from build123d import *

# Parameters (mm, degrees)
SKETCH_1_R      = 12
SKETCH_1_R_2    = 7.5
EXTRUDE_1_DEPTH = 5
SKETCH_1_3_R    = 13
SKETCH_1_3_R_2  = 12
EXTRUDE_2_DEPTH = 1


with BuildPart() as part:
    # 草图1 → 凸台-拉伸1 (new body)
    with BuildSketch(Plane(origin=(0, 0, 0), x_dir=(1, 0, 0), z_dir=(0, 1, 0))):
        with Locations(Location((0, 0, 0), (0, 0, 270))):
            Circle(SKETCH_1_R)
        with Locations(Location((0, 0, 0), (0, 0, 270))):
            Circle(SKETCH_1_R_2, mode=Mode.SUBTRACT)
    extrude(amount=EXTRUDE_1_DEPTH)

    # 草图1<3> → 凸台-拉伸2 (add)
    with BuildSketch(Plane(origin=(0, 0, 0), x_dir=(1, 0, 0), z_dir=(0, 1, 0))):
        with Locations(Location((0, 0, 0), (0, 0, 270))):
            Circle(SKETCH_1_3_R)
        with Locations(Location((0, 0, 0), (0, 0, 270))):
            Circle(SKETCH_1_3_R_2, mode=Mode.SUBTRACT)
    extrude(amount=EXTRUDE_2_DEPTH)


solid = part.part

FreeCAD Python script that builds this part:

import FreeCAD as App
import Part
import Sketcher

V = App.Vector

doc = App.newDocument("Part")
body = doc.addObject("PartDesign::Body", "Body")

sketch1 = doc.addObject("Sketcher::SketchObject", "Sketch")
body.addObject(sketch1)
sketch1.AttachmentSupport = (doc.XZ_Plane, [""])
sketch1.MapMode = "FlatFace"
sketch1.addGeometry(Part.Circle(V(0, 0, 0), V(0, 0, 1), 12), False)
sketch1.addGeometry(Part.Circle(V(0, 0, 0), V(0, 0, 1), 7.5), False)
sketch1.addConstraint(Sketcher.Constraint("Coincident", 0, 3, -1, 1))
sketch1.addConstraint(Sketcher.Constraint("Coincident", 1, 3, -1, 1))
sketch1.addConstraint(Sketcher.Constraint("Diameter", 0, 24.0))
sketch1.addConstraint(Sketcher.Constraint("Diameter", 1, 15.0))
pad1 = doc.addObject("PartDesign::Pad", "Pad")
body.addObject(pad1)
pad1.Profile = sketch1
pad1.Length = 5
pad1.Reversed = True

sketch2 = doc.addObject("Sketcher::SketchObject", "Sketch001")
body.addObject(sketch2)
sketch2.AttachmentSupport = (doc.XZ_Plane, [""])
sketch2.MapMode = "FlatFace"
sketch2.addGeometry(Part.Circle(V(0, 0, 0), V(0, 0, 1), 13), False)
sketch2.addGeometry(Part.Circle(V(0, 0, 0), V(0, 0, 1), 12), False)
sketch2.addConstraint(Sketcher.Constraint("Coincident", 0, 3, -1, 1))
sketch2.addConstraint(Sketcher.Constraint("Coincident", 1, 3, -1, 1))
sketch2.addConstraint(Sketcher.Constraint("Diameter", 0, 26.0))
sketch2.addConstraint(Sketcher.Constraint("Diameter", 1, 24.0))
pad2 = doc.addObject("PartDesign::Pad", "Pad001")
body.addObject(pad2)
pad2.Profile = sketch2
pad2.Length = 1
pad2.Reversed = True

doc.recompute()
